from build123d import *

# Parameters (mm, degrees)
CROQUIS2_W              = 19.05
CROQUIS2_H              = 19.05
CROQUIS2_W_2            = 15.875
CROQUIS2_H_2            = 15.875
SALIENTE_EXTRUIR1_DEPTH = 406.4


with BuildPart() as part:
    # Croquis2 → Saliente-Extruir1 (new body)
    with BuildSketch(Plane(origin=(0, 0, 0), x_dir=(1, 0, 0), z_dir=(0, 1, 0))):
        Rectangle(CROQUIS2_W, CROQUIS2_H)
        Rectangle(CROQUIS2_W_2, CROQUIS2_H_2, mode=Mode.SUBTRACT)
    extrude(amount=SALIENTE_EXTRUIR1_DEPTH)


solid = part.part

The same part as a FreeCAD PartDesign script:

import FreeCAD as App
import Part
import Sketcher

V = App.Vector
Q = App.Units.Quantity

doc = App.newDocument("Part")
body = doc.addObject("PartDesign::Body", "Body")

# Sketch on XZ plane
sketch1 = body.newObject("Sketcher::SketchObject", "Sketch")
sketch1.AttachmentSupport = (doc.getObject("XZ_Plane"), [""])
sketch1.MapMode = "FlatFace"
sketch1.addGeometry([
    Part.LineSegment(V(-10, -10, 0), V(-10, 10, 0)),  # 0
    Part.LineSegment(V(-10, 10, 0), V(10, 10, 0)),  # 1
    Part.LineSegment(V(10, 10, 0), V(10, -10, 0)),  # 2
    Part.LineSegment(V(10, -10, 0), V(-10, -10, 0)),  # 3
    Part.LineSegment(V(8, 8, 0), V(-8, 8, 0)),  # 4
    Part.LineSegment(V(-8, 8, 0), V(-8, -8, 0)),  # 5
    Part.LineSegment(V(-8, -8, 0), V(8, -8, 0)),  # 6
    Part.LineSegment(V(8, -8, 0), V(8, 8, 0)),  # 7
], False)
sketch1.addConstraint([
    Sketcher.Constraint("Coincident", 0, 2, 1, 1),
    Sketcher.Constraint("Coincident", 1, 2, 2, 1),
    Sketcher.Constraint("Coincident", 2, 2, 3, 1),
    Sketcher.Constraint("Coincident", 3, 2, 0, 1),
    Sketcher.Constraint("Coincident", 4, 2, 5, 1),
    Sketcher.Constraint("Coincident", 5, 2, 6, 1),
    Sketcher.Constraint("Coincident", 6, 2, 7, 1),
    Sketcher.Constraint("Coincident", 7, 2, 4, 1),
    Sketcher.Constraint("Vertical", 0),
    Sketcher.Constraint("Horizontal", 1),
    Sketcher.Constraint("Vertical", 2),
    Sketcher.Constraint("Horizontal", 3),
    Sketcher.Constraint("Horizontal", 4),
    Sketcher.Constraint("Vertical", 5),
    Sketcher.Constraint("Horizontal", 6),
    Sketcher.Constraint("Vertical", 7),
    Sketcher.Constraint("Symmetric", 0, 2, 2, 2, -1, 1),
    Sketcher.Constraint("Symmetric", 4, 2, 6, 2, -1, 1),
    Sketcher.Constraint("Equal", 3, 0),
    Sketcher.Constraint("Equal", 6, 5),
    Sketcher.Constraint("DistanceX", 1, 1, 1, 2, Q("0.75 in")),
    Sketcher.Constraint("DistanceX", 4, 2, 4, 1, Q("0.625 in")),
])
pad1 = body.newObject("PartDesign::Pad", "Pad")
pad1.Profile = sketch1
pad1.Length = Q("16 in")
pad1.Reversed = True

doc.recompute()
